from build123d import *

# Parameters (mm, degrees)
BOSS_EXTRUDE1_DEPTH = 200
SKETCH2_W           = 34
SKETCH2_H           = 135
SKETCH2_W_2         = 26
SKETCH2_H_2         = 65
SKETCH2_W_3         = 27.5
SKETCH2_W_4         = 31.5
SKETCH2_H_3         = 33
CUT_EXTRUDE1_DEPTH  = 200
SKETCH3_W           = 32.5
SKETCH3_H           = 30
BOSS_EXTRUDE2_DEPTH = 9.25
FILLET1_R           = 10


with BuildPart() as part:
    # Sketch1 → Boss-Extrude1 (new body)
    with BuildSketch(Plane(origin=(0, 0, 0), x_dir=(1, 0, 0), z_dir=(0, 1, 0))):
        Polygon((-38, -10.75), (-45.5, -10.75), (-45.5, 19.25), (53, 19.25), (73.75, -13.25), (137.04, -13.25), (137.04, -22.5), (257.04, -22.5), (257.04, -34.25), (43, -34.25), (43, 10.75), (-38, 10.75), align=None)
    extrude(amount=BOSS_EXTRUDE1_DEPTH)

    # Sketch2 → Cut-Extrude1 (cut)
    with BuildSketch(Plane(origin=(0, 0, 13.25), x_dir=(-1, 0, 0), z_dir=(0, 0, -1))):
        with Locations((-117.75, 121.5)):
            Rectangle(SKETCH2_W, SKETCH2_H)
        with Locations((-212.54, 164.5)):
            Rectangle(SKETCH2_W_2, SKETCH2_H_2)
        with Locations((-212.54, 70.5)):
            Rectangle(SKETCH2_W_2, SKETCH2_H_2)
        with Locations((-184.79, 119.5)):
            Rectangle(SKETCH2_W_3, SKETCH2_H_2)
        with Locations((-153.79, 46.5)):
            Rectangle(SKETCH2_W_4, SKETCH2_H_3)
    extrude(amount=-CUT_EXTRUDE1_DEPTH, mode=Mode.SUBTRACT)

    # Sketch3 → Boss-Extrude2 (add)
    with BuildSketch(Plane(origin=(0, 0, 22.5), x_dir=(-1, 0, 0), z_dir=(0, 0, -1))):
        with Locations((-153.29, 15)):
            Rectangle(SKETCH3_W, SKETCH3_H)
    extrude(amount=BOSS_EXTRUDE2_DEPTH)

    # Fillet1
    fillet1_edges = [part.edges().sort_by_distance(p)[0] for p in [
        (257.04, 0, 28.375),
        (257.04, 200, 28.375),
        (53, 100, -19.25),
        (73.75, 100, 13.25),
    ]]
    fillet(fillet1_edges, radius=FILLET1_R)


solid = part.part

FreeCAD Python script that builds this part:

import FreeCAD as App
import Part
import Sketcher
Q = App.Units.Quantity


def edges_at(feature, points):
    """Names of the edges that pass closest to the given points."""
    edges = feature.Shape.Edges
    near = lambda p: min(range(len(edges)), key=lambda i: edges[i].distToShape(Part.Vertex(*p))[0])
    return sorted({f"Edge{near(p) + 1}" for p in points})


def add_polygon(sketch, points):
    """Adds a closed chain of lines whose ends are joined by coincident constraints."""
    first, n = sketch.GeometryCount, len(points)
    for a, b in zip(points, points[1:] + points[:1]):
        sketch.addGeometry(Part.LineSegment(App.Vector(*a, 0), App.Vector(*b, 0)), False)
    for i in range(n):
        sketch.addConstraint(Sketcher.Constraint("Coincident", first + i, 2, first + (i + 1) % n, 1))

doc = App.newDocument("Part")
body = doc.addObject("PartDesign::Body", "Body")

# Sketch on XZ plane
sketch1 = body.newObject("Sketcher::SketchObject", "Sketch")
sketch1.AttachmentSupport = (doc.getObject("XZ_Plane"), [""])
sketch1.MapMode = "FlatFace"
add_polygon(sketch1, [(-46, 11), (-38, 11), (-38, -11), (43, -11), (43, 34), (257, 34), (257, 22), (137, 22), (137, 13), (74, 13), (53, -19), (-46, -19)])  # lines 0-11
sketch1.addConstraint([
    Sketcher.Constraint("Horizontal", 0),
    Sketcher.Constraint("Vertical", 1),
    Sketcher.Constraint("Horizontal", 2),
    Sketcher.Constraint("Vertical", 3),
    Sketcher.Constraint("Horizontal", 4),
    Sketcher.Constraint("Vertical", 5),
    Sketcher.Constraint("Horizontal", 6),
    Sketcher.Constraint("Vertical", 7),
    Sketcher.Constraint("Horizontal", 8),
    Sketcher.Constraint("Horizontal", 10),
    Sketcher.Constraint("Vertical", 11),
    Sketcher.Constraint("DistanceX", 2, 1, 2, 2, Q("81 mm")),
    Sketcher.Constraint("DistanceX", 6, 2, 6, 1, Q("120 mm")),
    Sketcher.Constraint("DistanceY", 3, 1, 3, 2, Q("45 mm")),
    Sketcher.Constraint("DistanceY", 11, 1, 11, 2, Q("30 mm")),
    Sketcher.Constraint("DistanceX", 0, 1, 0, 2, Q("7.5 mm")),
    Sketcher.Constraint("DistanceX", 10, 2, 10, 1, Q("98.5 mm")),
    Sketcher.Constraint("DistanceY", 1, 2, 1, 1, Q("21.5 mm")),
    Sketcher.Constraint("DistanceX", 0, 2, -1, 1, Q("38 mm")),
    Sketcher.Constraint("DistanceY", 7, 2, 3, 2, Q("21 mm")),
    Sketcher.Constraint("DistanceX", 4, 1, 4, 2, Q("214.04 mm")),
    Sketcher.Constraint("DistanceX", 8, 2, 8, 1, Q("63.29 mm")),
    Sketcher.Constraint("DistanceY", 5, 2, 5, 1, Q("11.75 mm")),
    Sketcher.Constraint("DistanceY", -1, 1, 5, 2, Q("22.5 mm")),
])
pad1 = body.newObject("PartDesign::Pad", "Pad")
pad1.Profile = sketch1
pad1.Length = 200
pad1.Reversed = True

# Sketch on XY plane
sketch2 = body.newObject("Sketcher::SketchObject", "Sketch001")
sketch2.AttachmentSupport = (doc.getObject("XY_Plane"), [""])
sketch2.MapMode = "FlatFace"
sketch2.AttachmentOffset = App.Placement(App.Vector(0, 0, 13.25), App.Rotation())
add_polygon(sketch2, [(135, 189), (135, 54), (101, 54), (101, 189)])  # lines 0-3
add_polygon(sketch2, [(226, 197), (226, 132), (200, 132), (200, 197)])  # lines 4-7
add_polygon(sketch2, [(226, 103), (226, 38), (200, 38), (200, 103)])  # lines 8-11
add_polygon(sketch2, [(199, 152), (199, 87), (171, 87), (171, 152)])  # lines 12-15
add_polygon(sketch2, [(170, 63), (170, 30), (138, 30), (138, 63)])  # lines 16-19
sketch2.addConstraint([
    Sketcher.Constraint("Vertical", 0),
    Sketcher.Constraint("Horizontal", 1),
    Sketcher.Constraint("Vertical", 2),
    Sketcher.Constraint("Horizontal", 3),
    Sketcher.Constraint("Vertical", 4),
    Sketcher.Constraint("Horizontal", 5),
    Sketcher.Constraint("Vertical", 6),
    Sketcher.Constraint("Horizontal", 7),
    Sketcher.Constraint("Vertical", 8),
    Sketcher.Constraint("Horizontal", 9),
    Sketcher.Constraint("Vertical", 10),
    Sketcher.Constraint("Horizontal", 11),
    Sketcher.Constraint("Vertical", 12),
    Sketcher.Constraint("Horizontal", 13),
    Sketcher.Constraint("Vertical", 14),
    Sketcher.Constraint("Horizontal", 15),
    Sketcher.Constraint("Vertical", 16),
    Sketcher.Constraint("Horizontal", 17),
    Sketcher.Constraint("Vertical", 18),
    Sketcher.Constraint("Horizontal", 19),
    Sketcher.Constraint("Vertical", 7, 2, 8, 2),
    Sketcher.Constraint("Vertical", 6, 2, 9, 2),
    Sketcher.Constraint("Equal", 6, 8),
    Sketcher.Constraint("Equal", 10, 12),
    Sketcher.Constraint("DistanceX", 1, 2, 1, 1, Q("34 mm")),
    Sketcher.Constraint("DistanceX", 5, 2, 5, 1, Q("26 mm")),
    Sketcher.Constraint("DistanceY", 0, 2, 0, 1, Q("135 mm")),
    Sketcher.Constraint("DistanceY", 4, 2, 4, 1, Q("65 mm")),
    Sketcher.Constraint("DistanceY", 16, 2, 16, 1, Q("33 mm")),
    Sketcher.Constraint("DistanceX", 13, 2, 13, 1, Q("27.5 mm")),
    Sketcher.Constraint("DistanceX", 17, 2, 17, 1, Q("31.5 mm")),
    Sketcher.Constraint("DistanceY", -1, 1, 0, 2, Q("54 mm")),
    Sketcher.Constraint("DistanceY", -1, 1, 4, 2, Q("132 mm")),
    Sketcher.Constraint("DistanceY", -1, 1, 8, 2, Q("38 mm")),
    Sketcher.Constraint("DistanceY", -1, 1, 12, 2, Q("87 mm")),
    Sketcher.Constraint("DistanceY", -1, 1, 16, 2, Q("30 mm")),
    Sketcher.Constraint("DistanceX", 12, 2, 10, 2, Q("1 mm")),
    Sketcher.Constraint("DistanceX", 16, 2, 9, 2, Q("30 mm")),
    Sketcher.Constraint("DistanceX", -1, 1, 0, 2, Q("134.75 mm")),
    Sketcher.Constraint("DistanceX", -1, 1, 4, 2, Q("225.54 mm")),
])
pocket1 = body.newObject("PartDesign::Pocket", "Pocket")
pocket1.Profile = sketch2
pocket1.Length = 200
pocket1.Reversed = True

# Sketch on XY plane
sketch3 = body.newObject("Sketcher::SketchObject", "Sketch002")
sketch3.AttachmentSupport = (doc.getObject("XY_Plane"), [""])
sketch3.MapMode = "FlatFace"
sketch3.AttachmentOffset = App.Placement(App.Vector(0, 0, 22.5), App.Rotation())
add_polygon(sketch3, [(170, 30), (170, 0), (137, 0), (137, 30)])  # lines 0-3
sketch3.addConstraint([
    Sketcher.Constraint("Vertical", 0),
    Sketcher.Constraint("Horizontal", 1),
    Sketcher.Constraint("Vertical", 2),
    Sketcher.Constraint("Horizontal", 3),
    Sketcher.Constraint("PointOnObject", 0, 2, -1),
    Sketcher.Constraint("DistanceY", 0, 2, 0, 1, Q("30 mm")),
    Sketcher.Constraint("DistanceX", 1, 2, 1, 1, Q("32.5 mm")),
    Sketcher.Constraint("DistanceX", -1, 1, 0, 2, Q("169.54 mm")),
])
pad2 = body.newObject("PartDesign::Pad", "Pad001")
pad2.Profile = sketch3
pad2.Length = 9.25
pad2.Reversed = True
doc.recompute()

fillet = body.newObject("PartDesign::Fillet", "Fillet")
fillet.Base = (pad2, edges_at(pad2, [
    (257.04, 0, 28.375),
    (257.04, 200, 28.375),
    (53, 100, -19.25),
    (73.75, 100, 13.25),
]))
fillet.Radius = 10

doc.recompute()
